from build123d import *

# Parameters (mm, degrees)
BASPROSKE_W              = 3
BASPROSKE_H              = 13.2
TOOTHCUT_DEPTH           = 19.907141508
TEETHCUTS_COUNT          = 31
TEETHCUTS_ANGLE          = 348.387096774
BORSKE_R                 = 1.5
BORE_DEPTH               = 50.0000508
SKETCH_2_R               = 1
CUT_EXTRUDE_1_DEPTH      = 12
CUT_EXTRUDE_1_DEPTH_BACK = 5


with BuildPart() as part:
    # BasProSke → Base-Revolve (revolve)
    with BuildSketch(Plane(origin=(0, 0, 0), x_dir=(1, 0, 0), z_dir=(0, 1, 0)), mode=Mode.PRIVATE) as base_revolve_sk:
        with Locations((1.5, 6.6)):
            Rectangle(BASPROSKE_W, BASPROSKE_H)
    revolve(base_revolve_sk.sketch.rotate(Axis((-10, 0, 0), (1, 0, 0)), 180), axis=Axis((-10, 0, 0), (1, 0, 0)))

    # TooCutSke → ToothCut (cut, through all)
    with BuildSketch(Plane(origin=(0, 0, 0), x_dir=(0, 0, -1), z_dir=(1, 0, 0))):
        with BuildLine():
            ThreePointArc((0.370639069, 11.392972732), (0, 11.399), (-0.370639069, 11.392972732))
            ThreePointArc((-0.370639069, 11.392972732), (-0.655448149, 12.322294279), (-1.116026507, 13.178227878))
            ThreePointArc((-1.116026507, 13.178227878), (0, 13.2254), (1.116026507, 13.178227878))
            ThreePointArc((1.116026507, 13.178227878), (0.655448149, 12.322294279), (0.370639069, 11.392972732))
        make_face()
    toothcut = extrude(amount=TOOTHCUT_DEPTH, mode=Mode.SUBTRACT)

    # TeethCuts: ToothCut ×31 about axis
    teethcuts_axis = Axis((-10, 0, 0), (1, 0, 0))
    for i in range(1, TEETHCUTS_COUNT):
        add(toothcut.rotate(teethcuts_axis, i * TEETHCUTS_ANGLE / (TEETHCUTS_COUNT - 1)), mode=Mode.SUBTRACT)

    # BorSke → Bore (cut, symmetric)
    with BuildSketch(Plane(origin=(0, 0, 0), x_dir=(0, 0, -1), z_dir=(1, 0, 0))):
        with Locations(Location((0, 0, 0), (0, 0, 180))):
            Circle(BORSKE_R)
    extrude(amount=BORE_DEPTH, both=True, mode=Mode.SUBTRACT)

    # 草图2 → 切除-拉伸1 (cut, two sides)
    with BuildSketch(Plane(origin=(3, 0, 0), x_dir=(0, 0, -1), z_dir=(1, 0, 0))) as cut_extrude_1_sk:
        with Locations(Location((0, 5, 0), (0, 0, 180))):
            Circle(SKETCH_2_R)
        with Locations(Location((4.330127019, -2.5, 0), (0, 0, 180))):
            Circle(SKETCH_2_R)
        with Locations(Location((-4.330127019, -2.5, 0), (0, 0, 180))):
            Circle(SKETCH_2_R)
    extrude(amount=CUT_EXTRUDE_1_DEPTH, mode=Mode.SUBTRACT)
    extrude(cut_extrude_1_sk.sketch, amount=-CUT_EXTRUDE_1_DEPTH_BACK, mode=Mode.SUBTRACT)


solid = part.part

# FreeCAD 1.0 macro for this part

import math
import FreeCAD as App
import Part
import Sketcher

V = App.Vector
Q = App.Units.Quantity

doc = App.newDocument("Part")
body = doc.addObject("PartDesign::Body", "Body")

sketch1 = body.newObject("Sketcher::SketchObject", "Sketch")
sketch1.AttachmentSupport = (doc.getObject("XZ_Plane"), [""])
sketch1.MapMode = "FlatFace"
sketch1.addGeometry([
    Part.LineSegment(V(0, -13.2, 0), V(0, 0, 0)),
    Part.LineSegment(V(0, 0, 0), V(3, 0, 0)),
    Part.LineSegment(V(3, 0, 0), V(3, -13.2, 0)),
    Part.LineSegment(V(3, -13.2, 0), V(0, -13.2, 0)),
], False)
sketch1.addConstraint([
    Sketcher.Constraint("Coincident", 0, 2, 1, 1),
    Sketcher.Constraint("Coincident", 1, 2, 2, 1),
    Sketcher.Constraint("Coincident", 2, 2, 3, 1),
    Sketcher.Constraint("Coincident", 3, 2, 0, 1),
    Sketcher.Constraint("Vertical", 0),
    Sketcher.Constraint("Horizontal", 1),
    Sketcher.Constraint("Vertical", 2),
    Sketcher.Constraint("Horizontal", 3),
    Sketcher.Constraint("Coincident", 0, 2, -1, 1),
    Sketcher.Constraint("DistanceX", 1, 1, 1, 2, Q("3 mm")),
    Sketcher.Constraint("DistanceY", 0, 1, 0, 2, Q("13.2 mm")),
])
revolution = body.newObject("PartDesign::Revolution", "Revolution")
revolution.Profile = sketch1
revolution.ReferenceAxis = (sketch1, ["H_Axis"])
revolution.Angle = 360

sketch2 = body.newObject("Sketcher::SketchObject", "Sketch001")
sketch2.AttachmentSupport = (doc.getObject("YZ_Plane"), [""])
sketch2.MapMode = "FlatFace"
sketch2.addGeometry([
    Part.ArcOfCircle(Part.Circle(V(0, 0, 0), V(0, 0, 1), 11.4), math.radians(-1.86), math.radians(1.86)),
    Part.ArcOfCircle(Part.Circle(V(10.4, -5.2, 0), V(0, 0, 1), 5), math.radians(56), math.radians(79)),
    Part.ArcOfCircle(Part.Circle(V(0, 0, 0), V(0, 0, 1), 13.2), math.radians(-4.84), math.radians(4.84)),
    Part.ArcOfCircle(Part.Circle(V(10.4, 5.2, 0), V(0, 0, 1), 5), math.radians(-79), math.radians(-56)),
], False)
sketch2.addConstraint([
    Sketcher.Constraint("Coincident", 0, 1, 1, 2),
    Sketcher.Constraint("Coincident", 1, 1, 2, 1),
    Sketcher.Constraint("Coincident", 2, 2, 3, 2),
    Sketcher.Constraint("Coincident", 3, 1, 0, 2),
    Sketcher.Constraint("Coincident", 0, 3, -1, 1),
    Sketcher.Constraint("Coincident", 2, 3, -1, 1),
    Sketcher.Constraint("Equal", 1, 3),
    Sketcher.Constraint("Symmetric", 1, 3, 3, 3, -1),
    Sketcher.Constraint("Radius", 1, Q("4.96 mm")),
    Sketcher.Constraint("Radius", 0, Q("11.398999 mm")),
    Sketcher.Constraint("Radius", 2, Q("13.2254 mm")),
    Sketcher.Constraint("DistanceY", 0, 1, -1, 1, Q("0.370639 mm")),
    Sketcher.Constraint("DistanceY", 1, 3, 3, 3, Q("10.46503 mm")),
])
pocket1 = body.newObject("PartDesign::Pocket", "Pocket")
pocket1.Profile = sketch2
pocket1.Type = "ThroughAll"
pocket1.Reversed = True
doc.recompute()

polarpattern = body.newObject("PartDesign::PolarPattern", "PolarPattern")
polarpattern.Originals = [pocket1]
polarpattern.Axis = (doc.getObject("X_Axis"), [""])
polarpattern.Angle = 360
polarpattern.Occurrences = 31
body.Tip = polarpattern

sketch3 = body.newObject("Sketcher::SketchObject", "Sketch002")
sketch3.AttachmentSupport = (doc.getObject("YZ_Plane"), [""])
sketch3.MapMode = "FlatFace"
sketch3.addGeometry(Part.Circle(V(0, 0, 0), V(0, 0, 1), 1.5), False)
sketch3.addConstraint([
    Sketcher.Constraint("Coincident", 0, 3, -1, 1),
    Sketcher.Constraint("Diameter", 0, Q("3 mm")),
])
pocket2 = body.newObject("PartDesign::Pocket", "Pocket001")
pocket2.Profile = sketch3
pocket2.Length = 100.000102
pocket2.Midplane = True

sketch4 = body.newObject("Sketcher::SketchObject", "Sketch003")
sketch4.AttachmentSupport = (doc.getObject("YZ_Plane"), [""])
sketch4.MapMode = "FlatFace"
sketch4.AttachmentOffset = App.Placement(V(0, 0, 3), App.Rotation())
sketch4.addGeometry([
    Part.Circle(V(5, 0, 0), V(0, 0, 1), 1),
    Part.Circle(V(-2.5, -4.3, 0), V(0, 0, 1), 1),
    Part.Circle(V(-2.5, 4.3, 0), V(0, 0, 1), 1),
], False)
sketch4.addConstraint([
    Sketcher.Constraint("Equal", 0, 1),
    Sketcher.Constraint("Equal", 1, 2),
    Sketcher.Constraint("Symmetric", 1, 3, 2, 3, -1),
    Sketcher.Constraint("PointOnObject", 0, 3, -1),
    Sketcher.Constraint("Diameter", 0, Q("2 mm")),
    Sketcher.Constraint("DistanceX", -1, 1, 0, 3, Q("5 mm")),
    Sketcher.Constraint("DistanceX", 1, 3, -1, 1, Q("2.5 mm")),
    Sketcher.Constraint("DistanceY", 1, 3, -1, 1, Q("4.330127 mm")),
])
pocket3 = body.newObject("PartDesign::Pocket", "Pocket002")
pocket3.Profile = sketch4
pocket3.Type = "ThroughAll"
pocket3.Midplane = True

doc.recompute()
